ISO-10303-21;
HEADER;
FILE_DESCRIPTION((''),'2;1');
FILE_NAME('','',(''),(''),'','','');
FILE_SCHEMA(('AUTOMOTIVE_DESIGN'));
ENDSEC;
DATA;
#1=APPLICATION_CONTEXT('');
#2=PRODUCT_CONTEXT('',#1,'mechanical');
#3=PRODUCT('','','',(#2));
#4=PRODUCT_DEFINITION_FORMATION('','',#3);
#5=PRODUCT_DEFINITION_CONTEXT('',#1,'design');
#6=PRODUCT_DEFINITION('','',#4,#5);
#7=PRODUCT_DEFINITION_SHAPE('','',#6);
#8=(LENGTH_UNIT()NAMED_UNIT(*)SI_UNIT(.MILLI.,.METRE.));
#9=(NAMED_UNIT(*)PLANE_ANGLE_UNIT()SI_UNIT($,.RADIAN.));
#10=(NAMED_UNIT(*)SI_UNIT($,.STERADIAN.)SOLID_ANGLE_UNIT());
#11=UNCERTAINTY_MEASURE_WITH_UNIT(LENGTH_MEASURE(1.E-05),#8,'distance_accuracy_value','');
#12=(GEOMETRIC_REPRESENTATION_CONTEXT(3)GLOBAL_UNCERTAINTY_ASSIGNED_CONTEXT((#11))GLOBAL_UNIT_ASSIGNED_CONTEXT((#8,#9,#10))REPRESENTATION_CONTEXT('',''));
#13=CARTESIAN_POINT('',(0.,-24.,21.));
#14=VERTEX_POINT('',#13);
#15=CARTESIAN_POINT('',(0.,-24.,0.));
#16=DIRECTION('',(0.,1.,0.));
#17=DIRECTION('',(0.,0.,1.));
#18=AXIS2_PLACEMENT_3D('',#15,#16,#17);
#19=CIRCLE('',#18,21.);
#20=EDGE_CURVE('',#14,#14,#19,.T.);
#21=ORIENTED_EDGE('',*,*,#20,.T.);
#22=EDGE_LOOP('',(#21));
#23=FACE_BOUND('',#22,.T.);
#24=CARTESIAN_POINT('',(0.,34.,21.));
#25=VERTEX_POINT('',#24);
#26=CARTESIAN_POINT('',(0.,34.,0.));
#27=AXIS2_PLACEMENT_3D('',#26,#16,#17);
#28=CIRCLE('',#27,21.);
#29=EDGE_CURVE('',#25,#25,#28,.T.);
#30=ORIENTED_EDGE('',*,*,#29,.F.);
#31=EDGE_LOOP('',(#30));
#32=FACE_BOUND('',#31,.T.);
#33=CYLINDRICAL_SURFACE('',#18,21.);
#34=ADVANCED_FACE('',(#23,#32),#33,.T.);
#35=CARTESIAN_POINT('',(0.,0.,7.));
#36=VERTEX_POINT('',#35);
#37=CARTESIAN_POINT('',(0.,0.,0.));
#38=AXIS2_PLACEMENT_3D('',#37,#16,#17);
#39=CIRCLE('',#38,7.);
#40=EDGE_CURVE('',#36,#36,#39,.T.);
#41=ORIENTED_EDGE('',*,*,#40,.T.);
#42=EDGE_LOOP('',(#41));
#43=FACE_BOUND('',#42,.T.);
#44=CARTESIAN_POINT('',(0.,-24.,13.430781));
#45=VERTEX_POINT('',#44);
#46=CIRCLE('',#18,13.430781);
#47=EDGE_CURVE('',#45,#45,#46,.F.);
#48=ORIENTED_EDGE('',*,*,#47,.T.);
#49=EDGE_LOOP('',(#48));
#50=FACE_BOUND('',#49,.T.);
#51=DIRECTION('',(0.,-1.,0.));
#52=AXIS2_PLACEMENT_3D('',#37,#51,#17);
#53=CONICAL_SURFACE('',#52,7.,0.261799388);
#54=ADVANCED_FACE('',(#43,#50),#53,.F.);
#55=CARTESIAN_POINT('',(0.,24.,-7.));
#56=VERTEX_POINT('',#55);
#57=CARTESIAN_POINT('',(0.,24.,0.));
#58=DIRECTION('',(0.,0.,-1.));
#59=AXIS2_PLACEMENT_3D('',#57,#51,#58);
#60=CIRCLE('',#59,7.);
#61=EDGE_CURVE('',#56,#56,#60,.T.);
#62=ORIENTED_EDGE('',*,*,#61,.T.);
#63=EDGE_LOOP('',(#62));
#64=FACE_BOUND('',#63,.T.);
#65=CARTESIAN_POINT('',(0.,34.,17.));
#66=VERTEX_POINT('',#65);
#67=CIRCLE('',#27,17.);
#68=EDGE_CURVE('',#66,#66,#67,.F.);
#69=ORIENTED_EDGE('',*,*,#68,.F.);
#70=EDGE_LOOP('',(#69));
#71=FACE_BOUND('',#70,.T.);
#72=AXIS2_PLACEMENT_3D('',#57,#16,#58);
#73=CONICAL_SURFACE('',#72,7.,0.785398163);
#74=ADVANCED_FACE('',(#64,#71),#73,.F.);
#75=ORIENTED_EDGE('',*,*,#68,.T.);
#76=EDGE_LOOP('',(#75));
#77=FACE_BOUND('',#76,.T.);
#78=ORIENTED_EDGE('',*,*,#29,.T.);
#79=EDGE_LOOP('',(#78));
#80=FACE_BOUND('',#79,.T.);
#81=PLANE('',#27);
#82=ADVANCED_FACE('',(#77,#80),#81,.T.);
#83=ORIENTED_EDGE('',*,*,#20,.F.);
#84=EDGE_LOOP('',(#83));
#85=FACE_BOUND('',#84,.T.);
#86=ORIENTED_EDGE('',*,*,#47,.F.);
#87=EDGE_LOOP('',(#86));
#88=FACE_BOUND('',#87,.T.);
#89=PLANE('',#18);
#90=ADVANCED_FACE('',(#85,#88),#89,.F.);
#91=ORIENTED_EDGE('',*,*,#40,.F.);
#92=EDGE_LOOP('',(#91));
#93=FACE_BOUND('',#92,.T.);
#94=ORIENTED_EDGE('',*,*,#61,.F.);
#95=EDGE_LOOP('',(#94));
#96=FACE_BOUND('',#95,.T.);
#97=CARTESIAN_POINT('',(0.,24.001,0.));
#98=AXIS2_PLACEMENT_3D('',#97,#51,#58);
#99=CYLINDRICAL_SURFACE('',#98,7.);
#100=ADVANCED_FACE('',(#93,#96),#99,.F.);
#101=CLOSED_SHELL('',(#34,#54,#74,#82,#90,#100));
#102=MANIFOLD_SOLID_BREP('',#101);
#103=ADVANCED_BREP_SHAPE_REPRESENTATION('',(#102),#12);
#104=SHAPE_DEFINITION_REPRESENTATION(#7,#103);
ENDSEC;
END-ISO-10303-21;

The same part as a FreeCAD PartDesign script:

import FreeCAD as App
import Part
import Sketcher

doc = App.newDocument("Part")
body = doc.addObject("PartDesign::Body", "Body")

# Sketch on XZ plane
sketch1 = body.newObject("Sketcher::SketchObject", "Sketch")
sketch1.AttachmentSupport = (doc.getObject("XZ_Plane"), [""])
sketch1.MapMode = "FlatFace"
sketch1.addGeometry(Part.Circle(App.Vector(0, 0, 0), App.Vector(0, 0, 1), 21), False)
sketch1.addConstraint([
    Sketcher.Constraint("Coincident", 0, 3, -1, 1),
    Sketcher.Constraint("Diameter", 0, 42.0),
])
pad1 = body.newObject("PartDesign::Pad", "Pad")
pad1.Profile = sketch1
pad1.Type = "TwoLengths"
pad1.Length = 24
pad1.Length2 = 24
pad1.Reversed = True

# Sketch on XZ plane
sketch2 = body.newObject("Sketcher::SketchObject", "Sketch001")
sketch2.AttachmentSupport = (doc.getObject("XZ_Plane"), [""])
sketch2.MapMode = "FlatFace"
sketch2.addGeometry(Part.Circle(App.Vector(0, 0, 0), App.Vector(0, 0, 1), 7), False)
sketch2.addConstraint([
    Sketcher.Constraint("Coincident", 0, 3, -1, 1),
    Sketcher.Constraint("Diameter", 0, 14.0),
])
pocket1 = body.newObject("PartDesign::Pocket", "Pocket")
pocket1.Profile = sketch2
pocket1.Length = 24
pocket1.Reversed = True
pocket1.TaperAngle = 15

# Sketch on XZ plane
sketch3 = body.newObject("Sketcher::SketchObject", "Sketch002")
sketch3.AttachmentSupport = (doc.getObject("XZ_Plane"), [""])
sketch3.MapMode = "FlatFace"
sketch3.addGeometry(Part.Circle(App.Vector(0, 0, 0), App.Vector(0, 0, 1), 7), False)
sketch3.addConstraint([
    Sketcher.Constraint("Coincident", 0, 3, -1, 1),
    Sketcher.Constraint("Diameter", 0, 14.0),
])
pocket2 = body.newObject("PartDesign::Pocket", "Pocket001")
pocket2.Profile = sketch3
pocket2.Length = 24

# Sketch on XZ plane
sketch4 = body.newObject("Sketcher::SketchObject", "Sketch003")
sketch4.AttachmentSupport = (doc.getObject("XZ_Plane"), [""])
sketch4.MapMode = "FlatFace"
sketch4.AttachmentOffset = App.Placement(App.Vector(0, 0, -24), App.Rotation())
sketch4.addGeometry(Part.Circle(App.Vector(0, 0, 0), App.Vector(0, 0, 1), 21), False)
sketch4.addConstraint([
    Sketcher.Constraint("Coincident", 0, 3, -1, 1),
    Sketcher.Constraint("Diameter", 0, 42.0),
])
pad2 = body.newObject("PartDesign::Pad", "Pad001")
pad2.Profile = sketch4
pad2.Length = 10
pad2.Reversed = True

# Sketch on XZ plane
sketch5 = body.newObject("Sketcher::SketchObject", "Sketch004")
sketch5.AttachmentSupport = (doc.getObject("XZ_Plane"), [""])
sketch5.MapMode = "FlatFace"
sketch5.AttachmentOffset = App.Placement(App.Vector(0, 0, -24), App.Rotation())
sketch5.addGeometry(Part.Circle(App.Vector(0, 0, 0), App.Vector(0, 0, 1), 7), False)
sketch5.addConstraint([
    Sketcher.Constraint("Coincident", 0, 3, -1, 1),
    Sketcher.Constraint("Diameter", 0, 14.0),
])
pocket3 = body.newObject("PartDesign::Pocket", "Pocket002")
pocket3.Profile = sketch5
pocket3.Length = 10
pocket3.TaperAngle = 45

doc.recompute()
